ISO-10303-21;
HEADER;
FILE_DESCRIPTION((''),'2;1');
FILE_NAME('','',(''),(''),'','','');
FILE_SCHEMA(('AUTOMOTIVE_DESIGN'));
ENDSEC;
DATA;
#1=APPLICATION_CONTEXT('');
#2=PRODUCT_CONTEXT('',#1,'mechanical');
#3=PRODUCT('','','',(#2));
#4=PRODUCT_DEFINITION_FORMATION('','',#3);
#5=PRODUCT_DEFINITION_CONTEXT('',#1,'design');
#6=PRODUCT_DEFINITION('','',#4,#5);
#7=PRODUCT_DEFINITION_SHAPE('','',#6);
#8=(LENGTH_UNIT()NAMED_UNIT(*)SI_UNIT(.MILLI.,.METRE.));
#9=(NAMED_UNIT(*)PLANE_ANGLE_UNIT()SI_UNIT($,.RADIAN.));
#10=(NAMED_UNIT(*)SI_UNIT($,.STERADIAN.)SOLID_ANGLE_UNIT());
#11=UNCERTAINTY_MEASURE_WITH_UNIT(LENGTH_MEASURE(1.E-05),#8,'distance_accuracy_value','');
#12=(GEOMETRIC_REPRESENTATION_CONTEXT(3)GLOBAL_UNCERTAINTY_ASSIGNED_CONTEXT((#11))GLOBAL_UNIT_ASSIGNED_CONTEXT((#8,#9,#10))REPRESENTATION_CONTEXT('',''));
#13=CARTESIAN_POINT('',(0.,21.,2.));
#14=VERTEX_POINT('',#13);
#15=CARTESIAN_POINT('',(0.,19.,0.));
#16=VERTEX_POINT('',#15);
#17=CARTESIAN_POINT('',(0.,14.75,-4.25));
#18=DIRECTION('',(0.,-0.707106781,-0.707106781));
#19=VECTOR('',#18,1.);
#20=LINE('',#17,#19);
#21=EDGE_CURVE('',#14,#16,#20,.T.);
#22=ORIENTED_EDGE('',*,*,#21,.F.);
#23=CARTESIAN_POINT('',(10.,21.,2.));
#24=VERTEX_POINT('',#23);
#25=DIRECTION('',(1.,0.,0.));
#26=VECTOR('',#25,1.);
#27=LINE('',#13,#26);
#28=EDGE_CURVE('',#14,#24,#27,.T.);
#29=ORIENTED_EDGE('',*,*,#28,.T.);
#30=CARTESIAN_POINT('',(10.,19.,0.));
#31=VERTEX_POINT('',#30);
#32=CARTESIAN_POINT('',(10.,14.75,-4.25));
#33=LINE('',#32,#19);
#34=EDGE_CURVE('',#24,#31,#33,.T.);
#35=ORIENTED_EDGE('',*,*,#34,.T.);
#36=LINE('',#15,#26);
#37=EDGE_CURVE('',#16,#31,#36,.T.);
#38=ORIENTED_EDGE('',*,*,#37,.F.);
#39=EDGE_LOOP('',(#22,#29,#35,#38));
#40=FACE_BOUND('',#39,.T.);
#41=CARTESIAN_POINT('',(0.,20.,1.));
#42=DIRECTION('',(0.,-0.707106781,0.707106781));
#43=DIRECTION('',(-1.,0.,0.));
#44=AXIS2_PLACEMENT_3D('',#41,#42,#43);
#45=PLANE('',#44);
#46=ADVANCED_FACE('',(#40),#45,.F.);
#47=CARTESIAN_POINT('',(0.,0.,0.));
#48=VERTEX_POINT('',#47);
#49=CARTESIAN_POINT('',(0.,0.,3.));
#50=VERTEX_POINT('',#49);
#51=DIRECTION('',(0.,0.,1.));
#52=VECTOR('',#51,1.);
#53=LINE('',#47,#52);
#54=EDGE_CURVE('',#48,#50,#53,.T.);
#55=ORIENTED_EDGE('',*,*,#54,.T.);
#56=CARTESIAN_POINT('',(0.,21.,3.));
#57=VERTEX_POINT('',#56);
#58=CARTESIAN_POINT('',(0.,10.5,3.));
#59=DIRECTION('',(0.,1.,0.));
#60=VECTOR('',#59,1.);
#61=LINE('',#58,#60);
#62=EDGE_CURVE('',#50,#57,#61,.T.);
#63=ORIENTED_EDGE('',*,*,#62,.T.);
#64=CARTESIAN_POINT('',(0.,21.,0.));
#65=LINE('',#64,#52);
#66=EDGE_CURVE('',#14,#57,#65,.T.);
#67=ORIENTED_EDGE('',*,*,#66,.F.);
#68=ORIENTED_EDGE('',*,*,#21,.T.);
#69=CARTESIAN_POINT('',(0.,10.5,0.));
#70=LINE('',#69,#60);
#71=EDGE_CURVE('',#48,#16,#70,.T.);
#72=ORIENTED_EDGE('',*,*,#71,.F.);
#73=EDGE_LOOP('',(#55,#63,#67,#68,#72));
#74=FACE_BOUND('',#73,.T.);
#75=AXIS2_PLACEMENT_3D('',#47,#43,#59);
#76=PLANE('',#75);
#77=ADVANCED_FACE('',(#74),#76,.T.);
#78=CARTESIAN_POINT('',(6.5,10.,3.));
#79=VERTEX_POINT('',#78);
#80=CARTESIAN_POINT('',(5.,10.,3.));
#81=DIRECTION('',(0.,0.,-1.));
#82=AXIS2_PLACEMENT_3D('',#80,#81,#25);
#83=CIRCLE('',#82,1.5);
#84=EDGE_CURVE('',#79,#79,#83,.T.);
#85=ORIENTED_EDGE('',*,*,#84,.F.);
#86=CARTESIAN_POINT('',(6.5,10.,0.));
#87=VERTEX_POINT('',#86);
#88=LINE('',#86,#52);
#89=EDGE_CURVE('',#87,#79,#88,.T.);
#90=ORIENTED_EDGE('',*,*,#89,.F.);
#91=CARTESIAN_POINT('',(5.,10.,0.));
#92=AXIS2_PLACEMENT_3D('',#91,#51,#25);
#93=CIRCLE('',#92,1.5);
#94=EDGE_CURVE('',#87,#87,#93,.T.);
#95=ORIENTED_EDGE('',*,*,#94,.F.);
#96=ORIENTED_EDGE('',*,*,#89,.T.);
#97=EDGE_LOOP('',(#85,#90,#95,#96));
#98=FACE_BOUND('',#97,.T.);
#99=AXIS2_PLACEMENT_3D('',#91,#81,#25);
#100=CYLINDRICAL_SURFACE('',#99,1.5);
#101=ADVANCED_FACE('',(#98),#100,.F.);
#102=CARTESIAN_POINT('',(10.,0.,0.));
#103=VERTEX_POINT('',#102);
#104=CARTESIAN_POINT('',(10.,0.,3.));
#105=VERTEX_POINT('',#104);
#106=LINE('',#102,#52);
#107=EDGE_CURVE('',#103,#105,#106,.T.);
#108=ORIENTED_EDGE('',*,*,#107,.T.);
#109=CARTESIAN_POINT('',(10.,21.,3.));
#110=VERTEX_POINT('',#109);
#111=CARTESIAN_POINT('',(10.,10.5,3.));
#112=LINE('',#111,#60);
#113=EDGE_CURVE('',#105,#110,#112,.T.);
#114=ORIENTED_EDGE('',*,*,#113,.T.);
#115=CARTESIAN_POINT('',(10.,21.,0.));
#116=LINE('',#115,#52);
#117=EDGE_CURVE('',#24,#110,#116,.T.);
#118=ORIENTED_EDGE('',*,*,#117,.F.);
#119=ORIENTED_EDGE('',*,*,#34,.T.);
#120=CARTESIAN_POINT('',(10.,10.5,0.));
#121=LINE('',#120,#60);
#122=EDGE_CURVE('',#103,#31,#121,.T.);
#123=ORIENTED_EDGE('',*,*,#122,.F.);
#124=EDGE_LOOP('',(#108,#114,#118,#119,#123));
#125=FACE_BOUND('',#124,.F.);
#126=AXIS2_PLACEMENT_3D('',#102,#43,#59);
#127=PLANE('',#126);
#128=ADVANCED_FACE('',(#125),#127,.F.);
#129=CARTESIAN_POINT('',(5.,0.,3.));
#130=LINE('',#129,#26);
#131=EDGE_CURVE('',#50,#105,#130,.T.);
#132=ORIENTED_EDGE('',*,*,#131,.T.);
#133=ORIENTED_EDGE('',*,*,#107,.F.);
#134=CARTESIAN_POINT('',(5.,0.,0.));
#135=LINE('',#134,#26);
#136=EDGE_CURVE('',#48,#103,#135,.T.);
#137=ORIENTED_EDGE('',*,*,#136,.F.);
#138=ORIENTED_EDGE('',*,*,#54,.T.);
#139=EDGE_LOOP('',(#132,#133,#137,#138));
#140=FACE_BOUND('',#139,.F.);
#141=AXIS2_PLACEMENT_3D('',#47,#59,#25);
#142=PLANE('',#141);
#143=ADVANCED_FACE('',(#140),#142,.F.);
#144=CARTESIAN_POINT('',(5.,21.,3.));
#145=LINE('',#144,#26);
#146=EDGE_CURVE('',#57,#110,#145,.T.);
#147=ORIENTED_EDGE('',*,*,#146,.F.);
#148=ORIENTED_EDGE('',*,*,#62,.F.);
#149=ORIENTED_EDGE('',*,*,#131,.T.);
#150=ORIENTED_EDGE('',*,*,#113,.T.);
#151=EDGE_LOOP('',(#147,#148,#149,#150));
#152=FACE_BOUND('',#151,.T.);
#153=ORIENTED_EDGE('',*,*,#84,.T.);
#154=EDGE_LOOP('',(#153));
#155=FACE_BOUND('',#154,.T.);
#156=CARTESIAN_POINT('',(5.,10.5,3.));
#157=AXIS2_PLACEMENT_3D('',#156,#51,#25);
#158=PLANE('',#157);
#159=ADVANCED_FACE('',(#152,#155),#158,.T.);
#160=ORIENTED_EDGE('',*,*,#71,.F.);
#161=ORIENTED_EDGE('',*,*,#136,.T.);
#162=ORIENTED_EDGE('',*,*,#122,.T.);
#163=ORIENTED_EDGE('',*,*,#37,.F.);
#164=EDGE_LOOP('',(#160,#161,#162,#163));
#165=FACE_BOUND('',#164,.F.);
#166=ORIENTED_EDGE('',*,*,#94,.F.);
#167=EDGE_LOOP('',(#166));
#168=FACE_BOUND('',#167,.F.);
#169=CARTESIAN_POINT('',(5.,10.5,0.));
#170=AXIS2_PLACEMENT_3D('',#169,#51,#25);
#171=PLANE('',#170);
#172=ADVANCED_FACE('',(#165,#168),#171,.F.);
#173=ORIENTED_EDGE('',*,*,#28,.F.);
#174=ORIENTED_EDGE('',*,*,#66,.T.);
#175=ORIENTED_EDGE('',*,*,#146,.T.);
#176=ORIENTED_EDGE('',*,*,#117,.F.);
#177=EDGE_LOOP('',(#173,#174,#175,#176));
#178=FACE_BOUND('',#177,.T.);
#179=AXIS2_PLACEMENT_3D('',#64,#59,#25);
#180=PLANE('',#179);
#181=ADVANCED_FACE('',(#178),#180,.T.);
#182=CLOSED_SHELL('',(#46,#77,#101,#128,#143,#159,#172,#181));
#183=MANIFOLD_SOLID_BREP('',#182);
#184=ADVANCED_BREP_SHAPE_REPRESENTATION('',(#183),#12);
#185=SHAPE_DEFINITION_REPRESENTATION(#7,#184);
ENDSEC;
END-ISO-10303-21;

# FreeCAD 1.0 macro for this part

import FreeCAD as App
import Part
import Sketcher


def edges_at(feature, points):
    """Names of the edges that pass closest to the given points."""
    edges = feature.Shape.Edges
    near = lambda p: min(range(len(edges)), key=lambda i: edges[i].distToShape(Part.Vertex(*p))[0])
    return sorted({f"Edge{near(p) + 1}" for p in points})


def add_polygon(sketch, points):
    """Adds a closed chain of lines whose ends are joined by coincident constraints."""
    first, n = sketch.GeometryCount, len(points)
    for a, b in zip(points, points[1:] + points[:1]):
        sketch.addGeometry(Part.LineSegment(App.Vector(*a, 0), App.Vector(*b, 0)), False)
    for i in range(n):
        sketch.addConstraint(Sketcher.Constraint("Coincident", first + i, 2, first + (i + 1) % n, 1))

doc = App.newDocument("Part")
body = doc.addObject("PartDesign::Body", "Body")

# Sketch on XY plane
sketch1 = body.newObject("Sketcher::SketchObject", "Sketch")
sketch1.AttachmentSupport = (doc.getObject("XY_Plane"), [""])
sketch1.MapMode = "FlatFace"
sketch1.addGeometry(Part.Circle(App.Vector(5, 10, 0), App.Vector(0, 0, 1), 1.5), False)
sketch1.addConstraint([
    Sketcher.Constraint("Diameter", 0, 3.0),
    Sketcher.Constraint("DistanceX", -1, 1, 0, 3, 5.0),
    Sketcher.Constraint("DistanceY", -1, 1, 0, 3, 10.0),
])
pad1 = body.newObject("PartDesign::Pad", "Pad")
pad1.Profile = sketch1
pad1.Length = 10
body2 = doc.addObject("PartDesign::Body", "Body001")

# Sketch on XY plane
sketch2 = body2.newObject("Sketcher::SketchObject", "Sketch001")
sketch2.AttachmentSupport = (doc.getObject("XY_Plane001"), [""])
sketch2.MapMode = "FlatFace"
add_polygon(sketch2, [(0, 21), (0, 0), (10, 0), (10, 21)])  # lines 0-3
sketch2.addConstraint([
    Sketcher.Constraint("Vertical", 0),
    Sketcher.Constraint("Horizontal", 1),
    Sketcher.Constraint("Vertical", 2),
    Sketcher.Constraint("Horizontal", 3),
    Sketcher.Constraint("Coincident", 0, 2, -1, 1),
    Sketcher.Constraint("DistanceX", 1, 1, 1, 2, 10.0),
    Sketcher.Constraint("DistanceY", 0, 2, 0, 1, 21.0),
])
pad2 = body2.newObject("PartDesign::Pad", "Pad001")
pad2.Profile = sketch2
pad2.Length = 3
doc.recompute()

boolean = body2.newObject("PartDesign::Boolean", "Boolean")
boolean.Type = "Cut"
boolean.addObjects([body])
doc.recompute()

chamfer = body2.newObject("PartDesign::Chamfer", "Chamfer")
chamfer.Base = (boolean, edges_at(boolean, [(5, 21, 0)]))
chamfer.Size = 2

doc.recompute()
